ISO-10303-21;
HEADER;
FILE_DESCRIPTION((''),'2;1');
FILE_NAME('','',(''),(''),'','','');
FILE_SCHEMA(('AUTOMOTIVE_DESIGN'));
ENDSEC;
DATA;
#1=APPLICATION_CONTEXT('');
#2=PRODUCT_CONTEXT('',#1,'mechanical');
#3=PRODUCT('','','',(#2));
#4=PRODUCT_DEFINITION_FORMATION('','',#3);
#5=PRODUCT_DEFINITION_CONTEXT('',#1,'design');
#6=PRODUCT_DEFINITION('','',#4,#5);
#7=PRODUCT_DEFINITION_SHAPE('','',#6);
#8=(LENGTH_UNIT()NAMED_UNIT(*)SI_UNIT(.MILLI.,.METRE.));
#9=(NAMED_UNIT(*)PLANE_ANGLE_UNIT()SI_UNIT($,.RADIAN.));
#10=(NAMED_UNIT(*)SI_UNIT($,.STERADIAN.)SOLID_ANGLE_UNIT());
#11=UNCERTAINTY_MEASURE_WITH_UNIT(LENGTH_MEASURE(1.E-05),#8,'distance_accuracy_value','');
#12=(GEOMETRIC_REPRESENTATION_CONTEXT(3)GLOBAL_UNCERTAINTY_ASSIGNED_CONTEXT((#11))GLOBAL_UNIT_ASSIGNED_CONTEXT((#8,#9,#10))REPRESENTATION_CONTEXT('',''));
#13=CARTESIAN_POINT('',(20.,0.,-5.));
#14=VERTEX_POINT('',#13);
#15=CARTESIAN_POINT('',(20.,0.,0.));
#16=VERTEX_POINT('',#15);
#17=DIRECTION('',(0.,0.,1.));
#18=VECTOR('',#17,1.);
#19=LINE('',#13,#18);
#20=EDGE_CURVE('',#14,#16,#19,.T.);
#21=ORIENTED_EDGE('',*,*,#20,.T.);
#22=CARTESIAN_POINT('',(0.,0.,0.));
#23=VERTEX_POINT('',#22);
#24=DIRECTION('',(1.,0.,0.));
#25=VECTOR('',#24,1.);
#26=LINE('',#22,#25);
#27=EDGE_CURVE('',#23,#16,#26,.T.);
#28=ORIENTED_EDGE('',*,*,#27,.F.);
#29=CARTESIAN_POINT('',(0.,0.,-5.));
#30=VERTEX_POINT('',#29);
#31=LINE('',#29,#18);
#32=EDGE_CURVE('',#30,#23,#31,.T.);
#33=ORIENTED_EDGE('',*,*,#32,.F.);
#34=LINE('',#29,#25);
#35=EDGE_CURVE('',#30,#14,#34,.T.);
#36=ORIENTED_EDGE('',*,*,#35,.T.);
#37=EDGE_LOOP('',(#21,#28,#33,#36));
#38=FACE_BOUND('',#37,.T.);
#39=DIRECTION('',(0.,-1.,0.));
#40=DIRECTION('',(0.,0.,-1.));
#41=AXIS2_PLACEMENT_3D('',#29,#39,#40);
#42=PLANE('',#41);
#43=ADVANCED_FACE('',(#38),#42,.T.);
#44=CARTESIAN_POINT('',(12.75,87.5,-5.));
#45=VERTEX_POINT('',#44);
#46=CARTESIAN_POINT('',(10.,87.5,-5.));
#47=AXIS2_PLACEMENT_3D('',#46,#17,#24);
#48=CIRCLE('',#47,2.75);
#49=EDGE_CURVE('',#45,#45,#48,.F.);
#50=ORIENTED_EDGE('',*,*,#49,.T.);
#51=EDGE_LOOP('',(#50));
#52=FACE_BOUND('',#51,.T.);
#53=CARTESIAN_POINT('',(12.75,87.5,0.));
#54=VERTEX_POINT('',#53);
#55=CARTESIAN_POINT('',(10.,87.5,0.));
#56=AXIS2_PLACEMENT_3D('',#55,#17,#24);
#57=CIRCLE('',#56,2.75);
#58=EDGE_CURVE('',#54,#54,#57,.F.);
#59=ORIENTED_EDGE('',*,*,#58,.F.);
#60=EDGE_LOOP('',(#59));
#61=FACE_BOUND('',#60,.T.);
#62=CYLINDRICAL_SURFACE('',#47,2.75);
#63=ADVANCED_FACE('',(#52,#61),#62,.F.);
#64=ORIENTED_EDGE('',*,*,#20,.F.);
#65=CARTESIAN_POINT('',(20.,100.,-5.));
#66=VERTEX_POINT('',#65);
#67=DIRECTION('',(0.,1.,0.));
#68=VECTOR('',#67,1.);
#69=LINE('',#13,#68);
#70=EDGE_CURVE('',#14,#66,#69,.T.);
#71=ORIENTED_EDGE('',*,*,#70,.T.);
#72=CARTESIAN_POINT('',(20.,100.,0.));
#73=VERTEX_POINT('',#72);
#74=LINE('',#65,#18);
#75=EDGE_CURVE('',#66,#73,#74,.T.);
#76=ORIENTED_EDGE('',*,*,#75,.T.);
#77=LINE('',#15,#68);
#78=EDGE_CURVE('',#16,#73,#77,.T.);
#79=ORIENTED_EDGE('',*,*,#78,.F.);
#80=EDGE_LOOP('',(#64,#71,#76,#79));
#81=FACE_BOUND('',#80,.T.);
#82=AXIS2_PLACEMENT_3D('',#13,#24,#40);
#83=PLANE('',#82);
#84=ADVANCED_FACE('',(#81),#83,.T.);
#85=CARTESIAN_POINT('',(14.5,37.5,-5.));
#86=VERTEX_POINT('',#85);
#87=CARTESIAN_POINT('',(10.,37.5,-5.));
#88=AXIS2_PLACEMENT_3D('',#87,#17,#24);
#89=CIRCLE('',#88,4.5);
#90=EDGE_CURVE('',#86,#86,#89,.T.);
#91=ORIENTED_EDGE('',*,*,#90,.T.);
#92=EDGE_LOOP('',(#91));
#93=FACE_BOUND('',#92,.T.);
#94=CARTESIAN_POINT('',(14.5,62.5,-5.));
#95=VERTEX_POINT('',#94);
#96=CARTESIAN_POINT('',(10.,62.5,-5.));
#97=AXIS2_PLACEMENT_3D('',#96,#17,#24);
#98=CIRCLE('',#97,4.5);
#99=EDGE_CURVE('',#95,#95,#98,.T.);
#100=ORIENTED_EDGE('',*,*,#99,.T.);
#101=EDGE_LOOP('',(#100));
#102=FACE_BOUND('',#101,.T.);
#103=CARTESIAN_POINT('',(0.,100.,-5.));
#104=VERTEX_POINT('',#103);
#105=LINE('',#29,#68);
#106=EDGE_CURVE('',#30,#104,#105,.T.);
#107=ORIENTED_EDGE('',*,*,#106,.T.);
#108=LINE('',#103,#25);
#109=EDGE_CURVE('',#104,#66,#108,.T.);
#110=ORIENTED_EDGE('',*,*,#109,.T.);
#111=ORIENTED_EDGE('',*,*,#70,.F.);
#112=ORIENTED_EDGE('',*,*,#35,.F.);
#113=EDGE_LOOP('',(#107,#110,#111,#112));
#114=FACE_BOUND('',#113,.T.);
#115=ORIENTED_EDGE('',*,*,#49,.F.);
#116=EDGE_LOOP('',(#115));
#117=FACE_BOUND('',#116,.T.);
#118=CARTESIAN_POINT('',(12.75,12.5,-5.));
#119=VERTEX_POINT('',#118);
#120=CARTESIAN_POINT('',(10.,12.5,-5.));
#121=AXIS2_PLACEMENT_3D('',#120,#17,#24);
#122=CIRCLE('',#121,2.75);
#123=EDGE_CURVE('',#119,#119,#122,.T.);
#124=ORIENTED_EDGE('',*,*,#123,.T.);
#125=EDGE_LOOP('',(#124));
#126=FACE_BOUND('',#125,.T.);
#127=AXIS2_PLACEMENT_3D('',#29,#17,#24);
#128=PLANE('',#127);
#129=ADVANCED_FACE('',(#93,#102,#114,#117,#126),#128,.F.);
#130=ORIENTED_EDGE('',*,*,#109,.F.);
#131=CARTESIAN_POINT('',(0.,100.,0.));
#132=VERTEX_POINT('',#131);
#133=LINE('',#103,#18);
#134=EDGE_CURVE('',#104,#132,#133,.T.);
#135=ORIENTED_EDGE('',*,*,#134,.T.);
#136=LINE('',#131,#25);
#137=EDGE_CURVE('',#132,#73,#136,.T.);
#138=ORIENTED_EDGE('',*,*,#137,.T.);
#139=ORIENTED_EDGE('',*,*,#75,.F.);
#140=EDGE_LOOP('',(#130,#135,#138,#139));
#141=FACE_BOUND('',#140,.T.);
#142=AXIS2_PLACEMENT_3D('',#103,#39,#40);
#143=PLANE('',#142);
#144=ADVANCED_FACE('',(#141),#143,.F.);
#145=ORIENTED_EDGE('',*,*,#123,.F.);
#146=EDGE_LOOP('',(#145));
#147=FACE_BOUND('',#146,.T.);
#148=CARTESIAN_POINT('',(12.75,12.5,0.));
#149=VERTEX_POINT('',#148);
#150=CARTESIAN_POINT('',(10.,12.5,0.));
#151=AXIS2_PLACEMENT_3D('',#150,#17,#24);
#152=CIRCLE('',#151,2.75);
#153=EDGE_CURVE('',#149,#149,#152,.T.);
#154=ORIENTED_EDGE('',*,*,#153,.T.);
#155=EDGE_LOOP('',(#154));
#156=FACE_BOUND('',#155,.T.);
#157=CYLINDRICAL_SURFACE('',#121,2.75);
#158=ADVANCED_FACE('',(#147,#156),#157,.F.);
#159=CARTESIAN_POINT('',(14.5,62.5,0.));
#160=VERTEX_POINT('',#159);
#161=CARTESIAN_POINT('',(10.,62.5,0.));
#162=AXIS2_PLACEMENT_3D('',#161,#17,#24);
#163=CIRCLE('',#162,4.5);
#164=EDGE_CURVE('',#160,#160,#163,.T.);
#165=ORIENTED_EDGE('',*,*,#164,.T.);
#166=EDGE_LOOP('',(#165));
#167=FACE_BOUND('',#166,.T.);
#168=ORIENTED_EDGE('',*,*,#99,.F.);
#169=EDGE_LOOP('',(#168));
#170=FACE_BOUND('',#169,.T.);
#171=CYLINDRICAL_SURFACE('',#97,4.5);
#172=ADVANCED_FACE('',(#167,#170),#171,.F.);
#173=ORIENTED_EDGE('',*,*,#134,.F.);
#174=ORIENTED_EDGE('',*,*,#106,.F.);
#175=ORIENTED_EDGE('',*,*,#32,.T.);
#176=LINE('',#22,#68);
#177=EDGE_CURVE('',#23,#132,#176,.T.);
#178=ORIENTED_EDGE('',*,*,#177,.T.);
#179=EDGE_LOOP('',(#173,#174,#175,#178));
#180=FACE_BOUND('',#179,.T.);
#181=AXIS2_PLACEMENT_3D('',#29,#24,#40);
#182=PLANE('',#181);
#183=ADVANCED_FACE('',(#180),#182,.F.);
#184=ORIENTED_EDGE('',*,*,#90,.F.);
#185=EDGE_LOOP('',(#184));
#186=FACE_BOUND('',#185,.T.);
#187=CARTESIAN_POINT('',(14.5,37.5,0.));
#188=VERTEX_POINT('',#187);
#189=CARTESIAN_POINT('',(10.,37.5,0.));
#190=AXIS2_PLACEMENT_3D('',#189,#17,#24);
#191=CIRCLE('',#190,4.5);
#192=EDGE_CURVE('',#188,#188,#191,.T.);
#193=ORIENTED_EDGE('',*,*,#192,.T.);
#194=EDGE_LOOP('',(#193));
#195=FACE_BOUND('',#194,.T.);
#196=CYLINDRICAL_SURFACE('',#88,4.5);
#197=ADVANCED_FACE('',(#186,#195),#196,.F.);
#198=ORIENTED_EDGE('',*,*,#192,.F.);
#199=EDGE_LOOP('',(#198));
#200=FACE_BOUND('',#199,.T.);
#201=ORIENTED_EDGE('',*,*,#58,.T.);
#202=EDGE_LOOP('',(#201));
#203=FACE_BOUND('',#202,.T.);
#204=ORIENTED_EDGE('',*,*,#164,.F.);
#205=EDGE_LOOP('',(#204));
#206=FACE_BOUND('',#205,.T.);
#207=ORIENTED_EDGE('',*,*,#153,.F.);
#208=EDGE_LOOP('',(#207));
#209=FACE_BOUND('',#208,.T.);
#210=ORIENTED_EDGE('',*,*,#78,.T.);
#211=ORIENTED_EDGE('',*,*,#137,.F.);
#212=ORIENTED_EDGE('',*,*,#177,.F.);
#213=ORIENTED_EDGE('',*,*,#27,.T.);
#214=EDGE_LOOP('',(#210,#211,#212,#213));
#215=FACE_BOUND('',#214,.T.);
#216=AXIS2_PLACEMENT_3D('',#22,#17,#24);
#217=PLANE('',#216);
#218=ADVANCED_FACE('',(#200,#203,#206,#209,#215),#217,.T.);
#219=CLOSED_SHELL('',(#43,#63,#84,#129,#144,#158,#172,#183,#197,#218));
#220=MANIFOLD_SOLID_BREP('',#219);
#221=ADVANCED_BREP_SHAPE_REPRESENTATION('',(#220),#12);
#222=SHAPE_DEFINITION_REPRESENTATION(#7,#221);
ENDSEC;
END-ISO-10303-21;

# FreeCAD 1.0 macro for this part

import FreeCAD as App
import Part
import Sketcher
Q = App.Units.Quantity


def add_polygon(sketch, points):
    """Adds a closed chain of lines whose ends are joined by coincident constraints."""
    first, n = sketch.GeometryCount, len(points)
    for a, b in zip(points, points[1:] + points[:1]):
        sketch.addGeometry(Part.LineSegment(App.Vector(*a, 0), App.Vector(*b, 0)), False)
    for i in range(n):
        sketch.addConstraint(Sketcher.Constraint("Coincident", first + i, 2, first + (i + 1) % n, 1))

doc = App.newDocument("Part")
body = doc.addObject("PartDesign::Body", "Body")

# Sketch on XY plane
sketch1 = body.newObject("Sketcher::SketchObject", "Sketch")
sketch1.AttachmentSupport = (doc.getObject("XY_Plane"), [""])
sketch1.MapMode = "FlatFace"
add_polygon(sketch1, [(0, 100), (0, 0), (20, 0), (20, 100)])  # lines 0-3
sketch1.addGeometry(Part.Circle(App.Vector(10, 37.5, 0), App.Vector(0, 0, 1), 4.5), False)  # 4
sketch1.addGeometry(Part.Circle(App.Vector(10, 62.5, 0), App.Vector(0, 0, 1), 4.5), False)  # 5
sketch1.addGeometry(Part.Circle(App.Vector(10, 12.5, 0), App.Vector(0, 0, 1), 2.8), False)  # 6
sketch1.addGeometry(Part.Circle(App.Vector(10, 87.5, 0), App.Vector(0, 0, 1), 2.8), False)  # 7
sketch1.addConstraint([
    Sketcher.Constraint("Vertical", 0),
    Sketcher.Constraint("Horizontal", 1),
    Sketcher.Constraint("Vertical", 2),
    Sketcher.Constraint("Horizontal", 3),
    Sketcher.Constraint("Coincident", 0, 2, -1, 1),
    Sketcher.Constraint("Equal", 4, 5),
    Sketcher.Constraint("Equal", 6, 7),
    Sketcher.Constraint("Vertical", 4, 3, 5, 3),
    Sketcher.Constraint("Vertical", 5, 3, 6, 3),
    Sketcher.Constraint("Vertical", 6, 3, 7, 3),
    Sketcher.Constraint("Diameter", 4, Q("9 mm")),
    Sketcher.Constraint("Diameter", 6, Q("5.5 mm")),
    Sketcher.Constraint("DistanceX", 1, 1, 1, 2, Q("20 mm")),
    Sketcher.Constraint("DistanceY", 0, 2, 0, 1, Q("100 mm")),
    Sketcher.Constraint("DistanceX", -1, 1, 4, 3, Q("10 mm")),
    Sketcher.Constraint("DistanceY", 4, 3, 5, 3, Q("25 mm")),
    Sketcher.Constraint("DistanceY", 6, 3, 4, 3, Q("25 mm")),
    Sketcher.Constraint("DistanceY", 5, 3, 7, 3, Q("25 mm")),
    Sketcher.Constraint("DistanceY", -1, 1, 4, 3, Q("37.5 mm")),
])
pad1 = body.newObject("PartDesign::Pad", "Pad")
pad1.Profile = sketch1
pad1.Length = 5
pad1.Reversed = True

doc.recompute()
